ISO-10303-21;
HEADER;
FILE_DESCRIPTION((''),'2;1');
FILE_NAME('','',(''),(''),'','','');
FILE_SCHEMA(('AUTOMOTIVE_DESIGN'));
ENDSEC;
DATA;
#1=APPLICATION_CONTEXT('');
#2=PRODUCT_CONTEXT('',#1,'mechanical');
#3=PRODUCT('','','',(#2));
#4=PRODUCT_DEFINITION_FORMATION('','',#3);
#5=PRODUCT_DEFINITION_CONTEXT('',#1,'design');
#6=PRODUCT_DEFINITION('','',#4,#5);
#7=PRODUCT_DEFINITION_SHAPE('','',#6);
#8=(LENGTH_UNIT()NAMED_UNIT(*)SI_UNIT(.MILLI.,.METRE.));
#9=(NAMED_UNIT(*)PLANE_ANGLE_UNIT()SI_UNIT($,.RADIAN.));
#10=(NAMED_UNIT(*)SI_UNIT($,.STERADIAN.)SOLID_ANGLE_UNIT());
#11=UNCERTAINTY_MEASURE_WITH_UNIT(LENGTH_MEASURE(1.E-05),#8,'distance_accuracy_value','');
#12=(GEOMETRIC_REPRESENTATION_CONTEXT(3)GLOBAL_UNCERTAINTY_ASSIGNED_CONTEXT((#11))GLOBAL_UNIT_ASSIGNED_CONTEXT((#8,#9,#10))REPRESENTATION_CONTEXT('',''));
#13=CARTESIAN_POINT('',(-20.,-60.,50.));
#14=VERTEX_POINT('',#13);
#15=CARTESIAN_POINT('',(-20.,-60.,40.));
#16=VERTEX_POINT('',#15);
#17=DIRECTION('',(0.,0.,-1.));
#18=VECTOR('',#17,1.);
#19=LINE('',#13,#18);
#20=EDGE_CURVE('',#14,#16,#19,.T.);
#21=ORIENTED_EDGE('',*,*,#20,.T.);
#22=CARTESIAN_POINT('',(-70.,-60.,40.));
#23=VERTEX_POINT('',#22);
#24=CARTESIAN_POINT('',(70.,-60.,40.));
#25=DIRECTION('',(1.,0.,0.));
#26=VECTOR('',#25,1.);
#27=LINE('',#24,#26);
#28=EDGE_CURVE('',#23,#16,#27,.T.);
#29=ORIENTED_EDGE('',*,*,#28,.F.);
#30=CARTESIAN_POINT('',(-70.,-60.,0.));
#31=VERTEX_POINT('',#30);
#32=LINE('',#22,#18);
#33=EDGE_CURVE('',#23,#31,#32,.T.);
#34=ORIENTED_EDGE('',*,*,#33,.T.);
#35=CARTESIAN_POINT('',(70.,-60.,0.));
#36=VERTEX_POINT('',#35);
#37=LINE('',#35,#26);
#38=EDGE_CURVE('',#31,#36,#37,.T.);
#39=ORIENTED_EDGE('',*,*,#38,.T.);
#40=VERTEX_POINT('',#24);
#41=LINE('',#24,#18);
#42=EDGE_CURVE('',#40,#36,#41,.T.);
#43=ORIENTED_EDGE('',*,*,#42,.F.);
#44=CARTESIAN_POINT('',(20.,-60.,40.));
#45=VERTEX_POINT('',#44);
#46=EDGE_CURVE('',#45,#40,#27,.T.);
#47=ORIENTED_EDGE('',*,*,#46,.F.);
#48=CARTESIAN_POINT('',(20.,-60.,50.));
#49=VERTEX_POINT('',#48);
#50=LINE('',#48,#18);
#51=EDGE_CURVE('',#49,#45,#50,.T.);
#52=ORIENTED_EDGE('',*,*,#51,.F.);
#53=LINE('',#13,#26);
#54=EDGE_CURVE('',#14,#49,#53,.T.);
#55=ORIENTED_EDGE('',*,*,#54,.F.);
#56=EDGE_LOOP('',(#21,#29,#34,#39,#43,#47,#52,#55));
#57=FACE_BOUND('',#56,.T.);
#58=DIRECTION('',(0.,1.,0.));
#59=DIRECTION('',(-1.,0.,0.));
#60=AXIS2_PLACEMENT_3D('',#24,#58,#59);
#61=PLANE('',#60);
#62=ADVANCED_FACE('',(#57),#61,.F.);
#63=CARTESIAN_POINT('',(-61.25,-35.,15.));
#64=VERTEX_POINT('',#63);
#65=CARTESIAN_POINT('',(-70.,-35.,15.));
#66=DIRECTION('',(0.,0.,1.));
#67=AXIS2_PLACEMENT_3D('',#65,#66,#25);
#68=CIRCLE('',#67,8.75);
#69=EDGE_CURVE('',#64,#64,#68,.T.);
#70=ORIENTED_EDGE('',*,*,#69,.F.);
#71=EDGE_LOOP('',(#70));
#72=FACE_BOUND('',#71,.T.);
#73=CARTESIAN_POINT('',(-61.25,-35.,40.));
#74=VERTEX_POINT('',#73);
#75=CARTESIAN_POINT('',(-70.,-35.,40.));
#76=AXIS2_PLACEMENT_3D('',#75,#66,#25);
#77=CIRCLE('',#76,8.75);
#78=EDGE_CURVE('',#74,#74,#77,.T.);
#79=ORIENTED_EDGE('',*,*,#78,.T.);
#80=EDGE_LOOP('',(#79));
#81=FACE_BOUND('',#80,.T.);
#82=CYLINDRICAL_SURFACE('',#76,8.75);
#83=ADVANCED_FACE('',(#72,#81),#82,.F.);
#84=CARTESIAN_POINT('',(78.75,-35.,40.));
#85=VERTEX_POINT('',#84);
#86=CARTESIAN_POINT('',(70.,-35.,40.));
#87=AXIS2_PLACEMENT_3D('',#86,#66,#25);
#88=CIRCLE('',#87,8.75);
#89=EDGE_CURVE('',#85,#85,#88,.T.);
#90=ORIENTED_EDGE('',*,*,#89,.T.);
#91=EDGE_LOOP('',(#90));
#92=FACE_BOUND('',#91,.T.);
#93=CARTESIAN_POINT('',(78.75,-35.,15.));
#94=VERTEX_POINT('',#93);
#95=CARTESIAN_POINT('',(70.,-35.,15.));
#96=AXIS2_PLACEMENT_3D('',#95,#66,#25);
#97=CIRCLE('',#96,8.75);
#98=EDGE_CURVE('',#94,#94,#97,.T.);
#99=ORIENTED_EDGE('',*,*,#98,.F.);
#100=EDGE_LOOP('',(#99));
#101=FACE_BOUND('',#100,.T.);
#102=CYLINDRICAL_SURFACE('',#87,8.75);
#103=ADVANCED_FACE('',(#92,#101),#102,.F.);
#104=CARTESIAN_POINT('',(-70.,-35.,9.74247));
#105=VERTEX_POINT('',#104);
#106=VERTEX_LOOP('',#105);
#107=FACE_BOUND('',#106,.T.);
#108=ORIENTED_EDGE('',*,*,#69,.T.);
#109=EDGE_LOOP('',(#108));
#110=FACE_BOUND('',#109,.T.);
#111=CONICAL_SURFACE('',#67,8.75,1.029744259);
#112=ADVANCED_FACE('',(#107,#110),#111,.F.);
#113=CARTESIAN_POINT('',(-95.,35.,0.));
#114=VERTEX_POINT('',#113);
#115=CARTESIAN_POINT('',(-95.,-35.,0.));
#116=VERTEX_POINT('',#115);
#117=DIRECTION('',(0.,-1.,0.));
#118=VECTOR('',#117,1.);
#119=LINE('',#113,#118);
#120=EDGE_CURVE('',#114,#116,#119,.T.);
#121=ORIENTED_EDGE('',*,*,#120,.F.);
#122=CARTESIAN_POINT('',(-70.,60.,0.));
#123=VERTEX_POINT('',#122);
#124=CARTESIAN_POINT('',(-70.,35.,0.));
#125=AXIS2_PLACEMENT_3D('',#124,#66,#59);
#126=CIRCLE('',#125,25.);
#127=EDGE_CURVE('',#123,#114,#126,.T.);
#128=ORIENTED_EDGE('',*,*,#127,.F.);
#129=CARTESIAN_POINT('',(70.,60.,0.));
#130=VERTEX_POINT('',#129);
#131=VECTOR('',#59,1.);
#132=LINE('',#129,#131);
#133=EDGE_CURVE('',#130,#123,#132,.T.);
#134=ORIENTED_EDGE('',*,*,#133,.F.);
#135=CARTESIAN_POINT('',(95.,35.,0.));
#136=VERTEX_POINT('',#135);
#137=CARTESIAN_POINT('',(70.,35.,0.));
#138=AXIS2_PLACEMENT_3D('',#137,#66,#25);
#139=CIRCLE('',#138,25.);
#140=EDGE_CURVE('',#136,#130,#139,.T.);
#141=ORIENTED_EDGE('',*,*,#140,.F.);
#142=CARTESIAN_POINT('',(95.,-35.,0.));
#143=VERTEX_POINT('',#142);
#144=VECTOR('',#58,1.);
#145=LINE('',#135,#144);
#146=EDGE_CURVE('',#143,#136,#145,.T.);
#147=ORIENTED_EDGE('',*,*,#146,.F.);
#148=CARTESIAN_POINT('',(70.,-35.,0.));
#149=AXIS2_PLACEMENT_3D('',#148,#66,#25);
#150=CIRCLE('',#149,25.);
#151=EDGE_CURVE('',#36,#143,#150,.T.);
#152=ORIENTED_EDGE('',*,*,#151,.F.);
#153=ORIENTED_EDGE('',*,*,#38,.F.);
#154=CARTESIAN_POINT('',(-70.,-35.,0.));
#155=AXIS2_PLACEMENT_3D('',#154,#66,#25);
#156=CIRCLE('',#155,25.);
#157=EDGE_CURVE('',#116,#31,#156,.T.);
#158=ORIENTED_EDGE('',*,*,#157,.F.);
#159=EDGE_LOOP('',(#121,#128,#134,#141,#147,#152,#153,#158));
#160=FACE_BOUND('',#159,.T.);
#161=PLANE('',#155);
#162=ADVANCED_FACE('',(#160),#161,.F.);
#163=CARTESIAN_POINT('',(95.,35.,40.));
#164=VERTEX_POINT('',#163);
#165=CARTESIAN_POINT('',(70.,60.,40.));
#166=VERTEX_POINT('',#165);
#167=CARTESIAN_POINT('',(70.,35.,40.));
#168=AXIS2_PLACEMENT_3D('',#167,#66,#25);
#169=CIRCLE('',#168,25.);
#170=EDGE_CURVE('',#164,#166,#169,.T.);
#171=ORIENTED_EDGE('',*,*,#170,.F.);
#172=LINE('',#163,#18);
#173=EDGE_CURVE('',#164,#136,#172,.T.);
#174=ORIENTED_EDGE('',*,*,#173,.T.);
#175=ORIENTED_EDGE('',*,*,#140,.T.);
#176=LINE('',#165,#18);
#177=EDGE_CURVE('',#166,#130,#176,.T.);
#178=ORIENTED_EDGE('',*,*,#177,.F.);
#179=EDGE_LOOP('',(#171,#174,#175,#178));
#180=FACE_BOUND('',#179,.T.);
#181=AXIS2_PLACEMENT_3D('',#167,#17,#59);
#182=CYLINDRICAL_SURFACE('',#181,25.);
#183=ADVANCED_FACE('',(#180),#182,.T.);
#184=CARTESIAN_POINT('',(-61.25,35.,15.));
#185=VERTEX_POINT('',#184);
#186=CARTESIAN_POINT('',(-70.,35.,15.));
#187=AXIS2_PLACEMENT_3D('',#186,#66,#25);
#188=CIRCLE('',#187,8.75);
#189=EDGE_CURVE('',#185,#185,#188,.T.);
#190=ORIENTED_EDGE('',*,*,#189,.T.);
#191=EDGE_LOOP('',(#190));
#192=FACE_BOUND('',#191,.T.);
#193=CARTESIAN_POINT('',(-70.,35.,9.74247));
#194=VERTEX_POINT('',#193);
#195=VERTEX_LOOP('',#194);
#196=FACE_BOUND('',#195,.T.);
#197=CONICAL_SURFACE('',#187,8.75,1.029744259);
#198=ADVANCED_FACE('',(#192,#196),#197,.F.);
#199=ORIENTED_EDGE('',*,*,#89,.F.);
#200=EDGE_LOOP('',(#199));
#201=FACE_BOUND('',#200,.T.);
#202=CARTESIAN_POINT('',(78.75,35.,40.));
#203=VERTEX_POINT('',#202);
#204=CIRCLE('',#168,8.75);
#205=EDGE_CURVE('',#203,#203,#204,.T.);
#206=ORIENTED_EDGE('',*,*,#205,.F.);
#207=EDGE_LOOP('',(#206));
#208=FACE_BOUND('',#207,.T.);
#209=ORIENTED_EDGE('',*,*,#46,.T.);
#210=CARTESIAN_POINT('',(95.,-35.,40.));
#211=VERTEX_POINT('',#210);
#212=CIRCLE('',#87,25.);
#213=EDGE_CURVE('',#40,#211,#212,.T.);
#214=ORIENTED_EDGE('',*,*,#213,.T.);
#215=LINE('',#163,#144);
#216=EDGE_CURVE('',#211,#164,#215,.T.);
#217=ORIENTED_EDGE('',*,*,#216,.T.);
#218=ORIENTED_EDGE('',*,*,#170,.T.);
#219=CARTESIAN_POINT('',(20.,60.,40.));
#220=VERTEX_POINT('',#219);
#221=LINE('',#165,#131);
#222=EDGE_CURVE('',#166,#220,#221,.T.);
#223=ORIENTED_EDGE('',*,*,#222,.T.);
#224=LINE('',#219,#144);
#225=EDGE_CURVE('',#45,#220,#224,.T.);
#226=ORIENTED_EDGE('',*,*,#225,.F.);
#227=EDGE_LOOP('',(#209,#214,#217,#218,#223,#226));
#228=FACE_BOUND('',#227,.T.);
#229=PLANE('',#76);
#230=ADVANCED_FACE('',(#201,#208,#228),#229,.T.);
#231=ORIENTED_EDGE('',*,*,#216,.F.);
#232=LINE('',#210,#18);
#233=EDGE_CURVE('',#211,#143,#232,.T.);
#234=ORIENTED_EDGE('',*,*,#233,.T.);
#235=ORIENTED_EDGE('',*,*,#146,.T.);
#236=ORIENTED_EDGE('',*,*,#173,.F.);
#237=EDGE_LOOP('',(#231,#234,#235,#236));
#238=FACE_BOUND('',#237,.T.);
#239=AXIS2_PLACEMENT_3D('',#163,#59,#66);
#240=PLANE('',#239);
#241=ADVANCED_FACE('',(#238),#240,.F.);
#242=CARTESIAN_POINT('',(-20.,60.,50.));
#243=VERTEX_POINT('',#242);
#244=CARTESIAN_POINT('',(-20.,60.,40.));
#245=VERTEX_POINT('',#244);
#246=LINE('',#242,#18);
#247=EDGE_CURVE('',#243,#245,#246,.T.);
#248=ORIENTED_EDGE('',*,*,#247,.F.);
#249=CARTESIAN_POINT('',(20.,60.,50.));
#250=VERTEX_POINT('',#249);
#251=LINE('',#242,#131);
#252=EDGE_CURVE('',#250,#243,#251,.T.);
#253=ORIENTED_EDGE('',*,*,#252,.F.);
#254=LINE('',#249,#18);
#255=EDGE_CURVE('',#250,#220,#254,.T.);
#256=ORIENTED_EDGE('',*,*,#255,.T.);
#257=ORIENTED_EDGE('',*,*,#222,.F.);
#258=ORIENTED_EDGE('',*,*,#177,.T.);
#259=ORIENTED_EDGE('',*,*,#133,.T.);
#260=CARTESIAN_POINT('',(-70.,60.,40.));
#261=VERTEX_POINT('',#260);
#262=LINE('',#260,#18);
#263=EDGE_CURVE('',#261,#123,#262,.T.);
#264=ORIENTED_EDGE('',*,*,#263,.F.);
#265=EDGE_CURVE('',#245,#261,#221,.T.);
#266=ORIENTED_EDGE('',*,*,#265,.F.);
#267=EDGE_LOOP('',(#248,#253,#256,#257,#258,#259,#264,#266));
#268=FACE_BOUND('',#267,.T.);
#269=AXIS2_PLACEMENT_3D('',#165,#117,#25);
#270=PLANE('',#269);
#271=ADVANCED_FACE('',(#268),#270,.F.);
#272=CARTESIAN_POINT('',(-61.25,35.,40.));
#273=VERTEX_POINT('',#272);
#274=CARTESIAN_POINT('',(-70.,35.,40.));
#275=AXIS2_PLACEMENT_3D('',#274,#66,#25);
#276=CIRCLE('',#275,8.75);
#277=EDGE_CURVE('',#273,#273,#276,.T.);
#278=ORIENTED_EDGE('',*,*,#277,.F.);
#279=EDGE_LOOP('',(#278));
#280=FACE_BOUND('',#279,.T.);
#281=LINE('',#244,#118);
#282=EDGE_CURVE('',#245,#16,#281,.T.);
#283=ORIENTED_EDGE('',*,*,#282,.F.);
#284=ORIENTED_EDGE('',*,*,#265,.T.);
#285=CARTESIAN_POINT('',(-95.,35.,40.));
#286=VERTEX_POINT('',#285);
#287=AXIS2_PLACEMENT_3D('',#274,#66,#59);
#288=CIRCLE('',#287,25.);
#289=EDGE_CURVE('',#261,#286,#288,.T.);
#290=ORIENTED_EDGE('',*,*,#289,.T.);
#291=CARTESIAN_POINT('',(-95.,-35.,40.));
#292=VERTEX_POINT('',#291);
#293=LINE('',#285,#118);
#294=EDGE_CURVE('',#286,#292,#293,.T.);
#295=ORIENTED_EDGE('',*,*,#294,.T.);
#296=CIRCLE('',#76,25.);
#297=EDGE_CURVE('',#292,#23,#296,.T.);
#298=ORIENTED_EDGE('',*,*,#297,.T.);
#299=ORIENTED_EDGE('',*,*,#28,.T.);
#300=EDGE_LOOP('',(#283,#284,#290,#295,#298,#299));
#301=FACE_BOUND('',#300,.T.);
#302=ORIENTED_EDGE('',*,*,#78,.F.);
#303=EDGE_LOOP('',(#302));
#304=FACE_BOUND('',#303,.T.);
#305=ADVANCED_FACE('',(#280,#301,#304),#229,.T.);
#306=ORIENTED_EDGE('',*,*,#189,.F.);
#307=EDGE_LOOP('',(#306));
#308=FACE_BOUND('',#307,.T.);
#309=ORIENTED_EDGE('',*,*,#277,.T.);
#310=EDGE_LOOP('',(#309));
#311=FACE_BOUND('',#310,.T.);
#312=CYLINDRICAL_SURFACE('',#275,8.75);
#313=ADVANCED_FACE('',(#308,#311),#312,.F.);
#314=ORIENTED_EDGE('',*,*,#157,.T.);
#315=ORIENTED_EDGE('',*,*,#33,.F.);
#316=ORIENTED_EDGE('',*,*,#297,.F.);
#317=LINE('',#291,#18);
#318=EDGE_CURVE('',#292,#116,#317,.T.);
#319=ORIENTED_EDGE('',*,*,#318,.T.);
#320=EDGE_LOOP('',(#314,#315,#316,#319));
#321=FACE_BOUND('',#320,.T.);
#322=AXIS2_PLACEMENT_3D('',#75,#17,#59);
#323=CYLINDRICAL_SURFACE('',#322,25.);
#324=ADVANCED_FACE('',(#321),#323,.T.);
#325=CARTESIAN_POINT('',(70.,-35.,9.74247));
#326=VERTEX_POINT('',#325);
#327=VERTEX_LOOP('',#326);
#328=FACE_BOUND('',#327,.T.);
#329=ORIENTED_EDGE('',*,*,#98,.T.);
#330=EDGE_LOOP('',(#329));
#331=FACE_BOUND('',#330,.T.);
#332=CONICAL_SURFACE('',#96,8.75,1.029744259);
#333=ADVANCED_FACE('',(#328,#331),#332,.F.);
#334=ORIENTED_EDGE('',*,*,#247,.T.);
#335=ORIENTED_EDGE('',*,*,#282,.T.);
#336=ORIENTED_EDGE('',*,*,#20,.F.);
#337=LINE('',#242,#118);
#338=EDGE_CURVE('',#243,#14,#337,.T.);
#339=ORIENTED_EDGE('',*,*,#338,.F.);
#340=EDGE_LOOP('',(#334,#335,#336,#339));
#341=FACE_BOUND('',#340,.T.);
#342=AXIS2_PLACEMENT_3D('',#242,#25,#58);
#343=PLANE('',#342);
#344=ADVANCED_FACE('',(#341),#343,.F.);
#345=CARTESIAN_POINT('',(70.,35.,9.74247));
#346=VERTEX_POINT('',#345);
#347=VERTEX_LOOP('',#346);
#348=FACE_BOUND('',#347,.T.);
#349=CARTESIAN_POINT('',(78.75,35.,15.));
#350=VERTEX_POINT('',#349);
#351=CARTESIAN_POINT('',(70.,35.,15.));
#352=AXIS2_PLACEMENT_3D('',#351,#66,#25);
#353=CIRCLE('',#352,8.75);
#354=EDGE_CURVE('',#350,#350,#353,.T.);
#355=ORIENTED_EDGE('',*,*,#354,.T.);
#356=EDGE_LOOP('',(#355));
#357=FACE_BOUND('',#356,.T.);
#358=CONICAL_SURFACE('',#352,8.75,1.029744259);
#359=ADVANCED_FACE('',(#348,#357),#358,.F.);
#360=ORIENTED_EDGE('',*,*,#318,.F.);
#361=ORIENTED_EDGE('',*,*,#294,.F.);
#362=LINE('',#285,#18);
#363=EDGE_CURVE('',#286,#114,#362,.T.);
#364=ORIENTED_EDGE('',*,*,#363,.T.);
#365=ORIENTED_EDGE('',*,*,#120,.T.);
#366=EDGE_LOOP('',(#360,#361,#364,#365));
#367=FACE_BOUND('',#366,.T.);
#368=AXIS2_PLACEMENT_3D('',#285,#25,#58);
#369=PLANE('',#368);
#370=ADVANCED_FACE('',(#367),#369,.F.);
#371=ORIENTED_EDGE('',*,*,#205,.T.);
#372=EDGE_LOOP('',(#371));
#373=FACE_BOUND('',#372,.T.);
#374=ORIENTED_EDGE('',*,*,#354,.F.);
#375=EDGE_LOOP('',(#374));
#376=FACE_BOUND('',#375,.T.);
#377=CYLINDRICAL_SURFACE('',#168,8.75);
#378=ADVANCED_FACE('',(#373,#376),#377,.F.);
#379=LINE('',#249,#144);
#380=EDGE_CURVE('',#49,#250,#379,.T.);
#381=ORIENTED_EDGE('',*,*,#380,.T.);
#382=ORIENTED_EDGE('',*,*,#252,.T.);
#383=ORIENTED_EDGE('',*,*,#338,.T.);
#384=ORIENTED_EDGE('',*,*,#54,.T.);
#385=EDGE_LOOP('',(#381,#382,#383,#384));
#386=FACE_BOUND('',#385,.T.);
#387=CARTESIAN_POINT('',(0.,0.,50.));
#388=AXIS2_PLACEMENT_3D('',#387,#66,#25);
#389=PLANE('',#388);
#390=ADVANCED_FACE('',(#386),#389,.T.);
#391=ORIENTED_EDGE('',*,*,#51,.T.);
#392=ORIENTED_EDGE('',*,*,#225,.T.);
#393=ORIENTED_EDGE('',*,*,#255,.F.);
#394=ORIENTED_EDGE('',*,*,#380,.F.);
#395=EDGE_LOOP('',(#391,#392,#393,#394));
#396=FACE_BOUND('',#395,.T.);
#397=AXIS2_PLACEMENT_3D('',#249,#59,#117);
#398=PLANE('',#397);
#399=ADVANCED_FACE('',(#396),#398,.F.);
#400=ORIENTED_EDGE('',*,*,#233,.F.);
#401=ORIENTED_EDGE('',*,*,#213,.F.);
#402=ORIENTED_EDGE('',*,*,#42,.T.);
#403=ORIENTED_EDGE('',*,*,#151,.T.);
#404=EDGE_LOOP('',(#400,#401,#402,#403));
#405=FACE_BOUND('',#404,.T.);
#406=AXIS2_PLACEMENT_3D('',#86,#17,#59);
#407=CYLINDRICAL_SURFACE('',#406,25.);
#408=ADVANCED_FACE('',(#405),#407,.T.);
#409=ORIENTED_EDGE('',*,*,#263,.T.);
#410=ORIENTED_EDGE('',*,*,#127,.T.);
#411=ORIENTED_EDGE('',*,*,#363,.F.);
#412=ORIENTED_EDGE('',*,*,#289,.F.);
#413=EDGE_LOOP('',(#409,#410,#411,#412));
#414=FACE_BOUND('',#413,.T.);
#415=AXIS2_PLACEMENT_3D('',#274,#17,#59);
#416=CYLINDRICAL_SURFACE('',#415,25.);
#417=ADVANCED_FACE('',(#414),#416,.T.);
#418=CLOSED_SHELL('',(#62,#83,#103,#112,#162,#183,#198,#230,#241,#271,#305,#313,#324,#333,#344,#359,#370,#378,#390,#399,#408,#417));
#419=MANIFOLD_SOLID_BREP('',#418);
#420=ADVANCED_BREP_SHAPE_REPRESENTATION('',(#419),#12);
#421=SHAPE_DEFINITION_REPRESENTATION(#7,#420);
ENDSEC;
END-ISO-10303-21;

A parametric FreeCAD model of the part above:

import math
import FreeCAD as App
import Part
import Sketcher

V = App.Vector


def add_polygon(sketch, points):
    """Adds a closed chain of lines whose ends are joined by coincident constraints."""
    first, n = sketch.GeometryCount, len(points)
    for a, b in zip(points, points[1:] + points[:1]):
        sketch.addGeometry(Part.LineSegment(App.Vector(*a, 0), App.Vector(*b, 0)), False)
    for i in range(n):
        sketch.addConstraint(Sketcher.Constraint("Coincident", first + i, 2, first + (i + 1) % n, 1))

doc = App.newDocument("Part")
params = doc.addObject("Spreadsheet::Sheet", "Params")
for row, (alias, value) in enumerate([
    ("sketch1_radius", "25 mm"),
    ("sketch1_width", "140 mm"),
    ("sketch1_height", "70 mm"),
    ("pad1_length", "40 mm"),
    ("sketch2_diameter", "17.5 mm"),
    ("hole_diameter", "17.5 mm"),
    ("hole_depth", "25 mm"),
    ("sketch3_width", "40 mm"),
    ("sketch3_height", "120 mm"),
    ("pad2_length", "10 mm"),
], start=1):
    params.set(f"A{row}", alias)
    params.set(f"B{row}", "=" + value)
    params.setAlias(f"B{row}", alias)

body = doc.addObject("PartDesign::Body", "Body")

# Sketch on XY plane
sketch1 = body.newObject("Sketcher::SketchObject", "Sketch")
sketch1.AttachmentSupport = (doc.getObject("XY_Plane"), [""])
sketch1.MapMode = "FlatFace"
sketch1.addGeometry([
    Part.LineSegment(V(70, 60, 0), V(-70, 60, 0)),  # 0
    Part.ArcOfCircle(Part.Circle(V(-70, 35, 0), V(0, 0, 1), 25), math.radians(90), math.radians(180)),  # 1
    Part.LineSegment(V(-95, 35, 0), V(-95, -35, 0)),  # 2
    Part.ArcOfCircle(Part.Circle(V(-70, -35, 0), V(0, 0, 1), 25), math.radians(180), math.radians(270)),  # 3
    Part.LineSegment(V(-70, -60, 0), V(70, -60, 0)),  # 4
    Part.ArcOfCircle(Part.Circle(V(70, -35, 0), V(0, 0, 1), 25), math.radians(-90), math.radians(0)),  # 5
    Part.LineSegment(V(95, -35, 0), V(95, 35, 0)),  # 6
    Part.ArcOfCircle(Part.Circle(V(70, 35, 0), V(0, 0, 1), 25), math.radians(0), math.radians(90)),  # 7
], False)
sketch1.addConstraint([
    Sketcher.Constraint("Tangent", 0, 2, 1, 1),
    Sketcher.Constraint("Tangent", 1, 2, 2, 1),
    Sketcher.Constraint("Tangent", 2, 2, 3, 1),
    Sketcher.Constraint("Tangent", 3, 2, 4, 1),
    Sketcher.Constraint("Tangent", 4, 2, 5, 1),
    Sketcher.Constraint("Tangent", 5, 2, 6, 1),
    Sketcher.Constraint("Tangent", 6, 2, 7, 1),
    Sketcher.Constraint("Tangent", 7, 2, 0, 1),
    Sketcher.Constraint("Horizontal", 0),
    Sketcher.Constraint("Vertical", 2),
    Sketcher.Constraint("Horizontal", 4),
    Sketcher.Constraint("Vertical", 6),
    Sketcher.Constraint("Equal", 1, 3),
    Sketcher.Constraint("Equal", 3, 5),
    Sketcher.Constraint("Equal", 5, 7),
    Sketcher.Constraint("Symmetric", 1, 3, 5, 3, -1, 1),
    Sketcher.Constraint("Radius", 1, 25.0),
    Sketcher.Constraint("DistanceX", 0, 2, 0, 1, 140.0),
    Sketcher.Constraint("DistanceY", 2, 2, 2, 1, 70.0),
])
sketch1.setExpression("Constraints[16]", "Params.sketch1_radius")
sketch1.setExpression("Constraints[17]", "Params.sketch1_width")
sketch1.setExpression("Constraints[18]", "Params.sketch1_height")
pad1 = body.newObject("PartDesign::Pad", "Pad")
pad1.Profile = sketch1
pad1.setExpression("Length", "Params.pad1_length")

# Sketch on XY plane
sketch2 = body.newObject("Sketcher::SketchObject", "Sketch001")
sketch2.AttachmentSupport = (doc.getObject("XY_Plane"), [""])
sketch2.MapMode = "FlatFace"
sketch2.AttachmentOffset = App.Placement(V(0, 0, 40), App.Rotation())
sketch2.addGeometry([
    Part.Circle(V(-70, 35, 0), V(0, 0, 1), 8.75),
    Part.Circle(V(-70, -35, 0), V(0, 0, 1), 8.75),
    Part.Circle(V(70, -35, 0), V(0, 0, 1), 8.75),
    Part.Circle(V(70, 35, 0), V(0, 0, 1), 8.75),
], False)
sketch2.addConstraint([
    Sketcher.Constraint("Equal", 0, 1),
    Sketcher.Constraint("Equal", 1, 2),
    Sketcher.Constraint("Equal", 2, 3),
    Sketcher.Constraint("Symmetric", 0, 3, 2, 3, -1, 1),
    Sketcher.Constraint("Symmetric", 1, 3, 3, 3, -1, 1),
    Sketcher.Constraint("Symmetric", 1, 3, 2, 3, -2),
    Sketcher.Constraint("Diameter", 0, 17.5),
    Sketcher.Constraint("DistanceX", 0, 3, -1, 1, 70.0),
    Sketcher.Constraint("DistanceY", -1, 1, 0, 3, 35.0),
])
sketch2.setExpression("Constraints[6]", "Params.sketch2_diameter")
doc.recompute()
hole = body.newObject("PartDesign::Hole", "Hole")
hole.Profile = sketch2
hole.ThreadType = "None"
hole.setExpression("Diameter", "Params.hole_diameter")
hole.DepthType = "Dimension"
hole.setExpression("Depth", "Params.hole_depth")
hole.DrillPoint = "Angled"
hole.DrillPointAngle = 118

# Sketch on XY plane
sketch3 = body.newObject("Sketcher::SketchObject", "Sketch002")
sketch3.AttachmentSupport = (doc.getObject("XY_Plane"), [""])
sketch3.MapMode = "FlatFace"
sketch3.AttachmentOffset = App.Placement(V(0, 0, 40), App.Rotation())
add_polygon(sketch3, [(-20, 60), (-20, -60), (20, -60), (20, 60)])  # lines 0-3
sketch3.addConstraint([
    Sketcher.Constraint("Vertical", 0),
    Sketcher.Constraint("Horizontal", 1),
    Sketcher.Constraint("Vertical", 2),
    Sketcher.Constraint("Horizontal", 3),
    Sketcher.Constraint("Symmetric", 0, 2, 2, 2, -1, 1),
    Sketcher.Constraint("DistanceX", 1, 1, 1, 2, 40.0),
    Sketcher.Constraint("DistanceY", 0, 2, 0, 1, 120.0),
])
sketch3.setExpression("Constraints[9]", "Params.sketch3_width")
sketch3.setExpression("Constraints[10]", "Params.sketch3_height")
pad2 = body.newObject("PartDesign::Pad", "Pad001")
pad2.Profile = sketch3
pad2.setExpression("Length", "Params.pad2_length")

doc.recompute()
